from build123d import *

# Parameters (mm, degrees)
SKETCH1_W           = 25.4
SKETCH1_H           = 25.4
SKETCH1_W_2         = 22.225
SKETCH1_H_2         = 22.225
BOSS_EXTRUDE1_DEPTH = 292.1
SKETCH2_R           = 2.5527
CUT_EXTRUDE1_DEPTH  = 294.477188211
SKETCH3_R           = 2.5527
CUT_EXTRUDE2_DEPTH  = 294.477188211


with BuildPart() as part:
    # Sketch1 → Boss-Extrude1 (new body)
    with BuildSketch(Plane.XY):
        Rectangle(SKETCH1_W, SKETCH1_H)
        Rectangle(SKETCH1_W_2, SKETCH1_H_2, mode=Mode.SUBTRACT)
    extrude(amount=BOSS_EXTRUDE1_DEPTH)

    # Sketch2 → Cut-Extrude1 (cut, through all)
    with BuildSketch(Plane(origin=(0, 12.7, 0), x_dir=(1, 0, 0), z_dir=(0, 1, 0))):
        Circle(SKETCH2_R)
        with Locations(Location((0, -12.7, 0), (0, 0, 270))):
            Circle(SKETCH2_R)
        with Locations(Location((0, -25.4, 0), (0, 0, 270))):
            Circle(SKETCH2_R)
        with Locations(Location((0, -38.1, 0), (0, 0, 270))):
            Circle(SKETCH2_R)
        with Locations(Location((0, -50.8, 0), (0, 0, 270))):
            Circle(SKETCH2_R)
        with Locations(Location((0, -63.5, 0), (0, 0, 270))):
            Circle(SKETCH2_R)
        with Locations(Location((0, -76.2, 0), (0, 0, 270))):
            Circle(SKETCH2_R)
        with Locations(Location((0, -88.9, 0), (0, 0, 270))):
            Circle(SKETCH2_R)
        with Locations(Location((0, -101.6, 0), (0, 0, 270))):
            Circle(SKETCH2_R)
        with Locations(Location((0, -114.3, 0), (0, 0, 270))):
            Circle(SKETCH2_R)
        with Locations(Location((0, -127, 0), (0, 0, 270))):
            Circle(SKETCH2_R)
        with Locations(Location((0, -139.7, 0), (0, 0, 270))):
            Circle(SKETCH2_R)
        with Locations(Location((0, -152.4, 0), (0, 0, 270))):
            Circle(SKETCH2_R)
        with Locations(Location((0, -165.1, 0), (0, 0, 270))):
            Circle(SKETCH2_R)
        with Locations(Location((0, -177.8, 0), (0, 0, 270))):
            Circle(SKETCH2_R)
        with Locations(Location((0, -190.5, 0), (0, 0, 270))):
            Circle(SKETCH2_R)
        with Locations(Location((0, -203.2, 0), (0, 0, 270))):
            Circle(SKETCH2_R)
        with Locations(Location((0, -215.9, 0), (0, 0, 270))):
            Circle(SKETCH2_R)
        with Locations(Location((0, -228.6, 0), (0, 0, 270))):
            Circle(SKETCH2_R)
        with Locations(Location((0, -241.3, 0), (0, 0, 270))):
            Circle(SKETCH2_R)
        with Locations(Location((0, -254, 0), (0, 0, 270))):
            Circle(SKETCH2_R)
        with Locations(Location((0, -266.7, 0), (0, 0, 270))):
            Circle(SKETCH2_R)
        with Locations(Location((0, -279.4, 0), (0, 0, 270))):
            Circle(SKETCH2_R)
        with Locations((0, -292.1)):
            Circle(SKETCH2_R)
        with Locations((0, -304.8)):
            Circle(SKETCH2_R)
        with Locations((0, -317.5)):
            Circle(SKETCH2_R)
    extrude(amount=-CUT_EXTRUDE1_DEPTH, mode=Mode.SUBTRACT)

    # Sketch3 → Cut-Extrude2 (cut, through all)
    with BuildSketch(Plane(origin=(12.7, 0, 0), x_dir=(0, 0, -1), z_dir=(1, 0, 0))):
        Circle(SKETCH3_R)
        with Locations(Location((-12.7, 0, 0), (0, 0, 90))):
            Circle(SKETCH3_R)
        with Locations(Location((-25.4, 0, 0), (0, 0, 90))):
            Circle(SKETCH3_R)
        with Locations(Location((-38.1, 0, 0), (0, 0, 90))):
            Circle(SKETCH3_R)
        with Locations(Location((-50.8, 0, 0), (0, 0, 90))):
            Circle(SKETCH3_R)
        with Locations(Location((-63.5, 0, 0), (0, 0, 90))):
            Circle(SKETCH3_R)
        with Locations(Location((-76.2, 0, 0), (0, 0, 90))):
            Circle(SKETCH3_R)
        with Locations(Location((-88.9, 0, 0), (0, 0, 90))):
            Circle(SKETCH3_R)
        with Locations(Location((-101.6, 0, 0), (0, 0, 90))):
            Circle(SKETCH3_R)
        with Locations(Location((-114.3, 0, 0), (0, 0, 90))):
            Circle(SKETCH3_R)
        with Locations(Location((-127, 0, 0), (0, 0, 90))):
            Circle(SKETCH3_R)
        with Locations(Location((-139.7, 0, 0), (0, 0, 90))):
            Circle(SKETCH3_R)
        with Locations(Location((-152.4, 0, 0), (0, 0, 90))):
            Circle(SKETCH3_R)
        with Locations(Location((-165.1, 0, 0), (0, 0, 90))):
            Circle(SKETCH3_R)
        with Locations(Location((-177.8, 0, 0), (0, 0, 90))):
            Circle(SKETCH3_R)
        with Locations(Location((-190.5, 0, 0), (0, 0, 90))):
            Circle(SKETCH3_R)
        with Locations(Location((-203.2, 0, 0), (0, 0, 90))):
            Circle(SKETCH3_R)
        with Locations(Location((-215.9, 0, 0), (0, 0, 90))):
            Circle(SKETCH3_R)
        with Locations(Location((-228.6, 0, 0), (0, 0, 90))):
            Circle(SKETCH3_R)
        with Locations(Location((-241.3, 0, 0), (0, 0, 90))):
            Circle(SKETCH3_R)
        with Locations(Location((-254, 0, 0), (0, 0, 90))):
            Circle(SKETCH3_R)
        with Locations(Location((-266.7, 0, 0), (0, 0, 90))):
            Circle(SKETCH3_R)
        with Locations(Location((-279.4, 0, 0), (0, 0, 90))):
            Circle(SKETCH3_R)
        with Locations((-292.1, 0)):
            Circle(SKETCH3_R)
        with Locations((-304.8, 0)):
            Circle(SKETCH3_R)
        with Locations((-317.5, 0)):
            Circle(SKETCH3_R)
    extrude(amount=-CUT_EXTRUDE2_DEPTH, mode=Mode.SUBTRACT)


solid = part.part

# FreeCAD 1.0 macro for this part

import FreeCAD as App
import Part
import Sketcher
Q = App.Units.Quantity


def add_polygon(sketch, points):
    """Adds a closed chain of lines whose ends are joined by coincident constraints."""
    first, n = sketch.GeometryCount, len(points)
    for a, b in zip(points, points[1:] + points[:1]):
        sketch.addGeometry(Part.LineSegment(App.Vector(*a, 0), App.Vector(*b, 0)), False)
    for i in range(n):
        sketch.addConstraint(Sketcher.Constraint("Coincident", first + i, 2, first + (i + 1) % n, 1))

doc = App.newDocument("Part")
body = doc.addObject("PartDesign::Body", "Body")

sketch1 = body.newObject("Sketcher::SketchObject", "Sketch")
sketch1.AttachmentSupport = (doc.getObject("XY_Plane"), [""])
sketch1.MapMode = "FlatFace"
add_polygon(sketch1, [(-13, 13), (-13, -13), (13, -13), (13, 13)])
add_polygon(sketch1, [(11, -11), (-11, -11), (-11, 11), (11, 11)])
sketch1.addConstraint([
    Sketcher.Constraint("Vertical", 0),
    Sketcher.Constraint("Horizontal", 1),
    Sketcher.Constraint("Vertical", 2),
    Sketcher.Constraint("Horizontal", 3),
    Sketcher.Constraint("Horizontal", 4),
    Sketcher.Constraint("Vertical", 5),
    Sketcher.Constraint("Horizontal", 6),
    Sketcher.Constraint("Vertical", 7),
    Sketcher.Constraint("Symmetric", 0, 2, 2, 2, -1, 1),
    Sketcher.Constraint("Symmetric", 4, 2, 6, 2, -1, 1),
    Sketcher.Constraint("Equal", 3, 0),
    Sketcher.Constraint("Equal", 6, 5),
    Sketcher.Constraint("DistanceX", 1, 1, 1, 2, Q("1 in")),
    Sketcher.Constraint("DistanceX", 4, 2, 4, 1, Q("0.875 in")),
])
pad1 = body.newObject("PartDesign::Pad", "Pad")
pad1.Profile = sketch1
pad1.Length = Q("11.5 in")

sketch2 = body.newObject("Sketcher::SketchObject", "Sketch001")
sketch2.AttachmentSupport = (doc.getObject("XZ_Plane"), [""])
sketch2.MapMode = "FlatFace"
sketch2.AttachmentOffset = App.Placement(App.Vector(0, 0, -0.5 * 25.4), App.Rotation())
sketch2.addGeometry([
    Part.Circle(App.Vector(0, 0, 0), App.Vector(0, 0, 1), 2.6),
    Part.Circle(App.Vector(0, 12.7, 0), App.Vector(0, 0, 1), 2.6),
    Part.Circle(App.Vector(0, 25.4, 0), App.Vector(0, 0, 1), 2.6),
    Part.Circle(App.Vector(0, 38.1, 0), App.Vector(0, 0, 1), 2.6),
    Part.Circle(App.Vector(0, 50.8, 0), App.Vector(0, 0, 1), 2.6),
    Part.Circle(App.Vector(0, 63.5, 0), App.Vector(0, 0, 1), 2.6),
    Part.Circle(App.Vector(0, 76.2, 0), App.Vector(0, 0, 1), 2.6),
    Part.Circle(App.Vector(0, 88.9, 0), App.Vector(0, 0, 1), 2.6),
    Part.Circle(App.Vector(0, 101.6, 0), App.Vector(0, 0, 1), 2.6),
    Part.Circle(App.Vector(0, 114.3, 0), App.Vector(0, 0, 1), 2.6),
    Part.Circle(App.Vector(0, 127, 0), App.Vector(0, 0, 1), 2.6),
    Part.Circle(App.Vector(0, 139.7, 0), App.Vector(0, 0, 1), 2.6),
    Part.Circle(App.Vector(0, 152.4, 0), App.Vector(0, 0, 1), 2.6),
    Part.Circle(App.Vector(0, 165.1, 0), App.Vector(0, 0, 1), 2.6),
    Part.Circle(App.Vector(0, 177.8, 0), App.Vector(0, 0, 1), 2.6),
    Part.Circle(App.Vector(0, 190.5, 0), App.Vector(0, 0, 1), 2.6),
    Part.Circle(App.Vector(0, 203.2, 0), App.Vector(0, 0, 1), 2.6),
    Part.Circle(App.Vector(0, 215.9, 0), App.Vector(0, 0, 1), 2.6),
    Part.Circle(App.Vector(0, 228.6, 0), App.Vector(0, 0, 1), 2.6),
    Part.Circle(App.Vector(0, 241.3, 0), App.Vector(0, 0, 1), 2.6),
    Part.Circle(App.Vector(0, 254, 0), App.Vector(0, 0, 1), 2.6),
    Part.Circle(App.Vector(0, 266.7, 0), App.Vector(0, 0, 1), 2.6),
    Part.Circle(App.Vector(0, 279.4, 0), App.Vector(0, 0, 1), 2.6),
    Part.Circle(App.Vector(0, 292.1, 0), App.Vector(0, 0, 1), 2.6),
    Part.Circle(App.Vector(0, 304.8, 0), App.Vector(0, 0, 1), 2.6),
    Part.Circle(App.Vector(0, 317.5, 0), App.Vector(0, 0, 1), 2.6),
], False)
sketch2.addConstraint([
    Sketcher.Constraint("Coincident", 0, 3, -1, 1),
    Sketcher.Constraint("Equal", 0, 1),
    Sketcher.Constraint("Equal", 1, 2),
    Sketcher.Constraint("Equal", 2, 3),
    Sketcher.Constraint("Equal", 3, 4),
    Sketcher.Constraint("Equal", 4, 5),
    Sketcher.Constraint("Equal", 5, 6),
    Sketcher.Constraint("Equal", 6, 7),
    Sketcher.Constraint("Equal", 7, 8),
    Sketcher.Constraint("Equal", 8, 9),
    Sketcher.Constraint("Equal", 9, 10),
    Sketcher.Constraint("Equal", 10, 11),
    Sketcher.Constraint("Equal", 11, 12),
    Sketcher.Constraint("Equal", 12, 13),
    Sketcher.Constraint("Equal", 13, 14),
    Sketcher.Constraint("Equal", 14, 15),
    Sketcher.Constraint("Equal", 15, 16),
    Sketcher.Constraint("Equal", 16, 17),
    Sketcher.Constraint("Equal", 17, 18),
    Sketcher.Constraint("Equal", 18, 19),
    Sketcher.Constraint("Equal", 19, 20),
    Sketcher.Constraint("Equal", 20, 21),
    Sketcher.Constraint("Equal", 21, 22),
    Sketcher.Constraint("Equal", 22, 23),
    Sketcher.Constraint("Equal", 23, 24),
    Sketcher.Constraint("Equal", 24, 25),
    Sketcher.Constraint("PointOnObject", 1, 3, -2),
    Sketcher.Constraint("PointOnObject", 2, 3, -2),
    Sketcher.Constraint("PointOnObject", 3, 3, -2),
    Sketcher.Constraint("PointOnObject", 4, 3, -2),
    Sketcher.Constraint("PointOnObject", 5, 3, -2),
    Sketcher.Constraint("PointOnObject", 6, 3, -2),
    Sketcher.Constraint("PointOnObject", 7, 3, -2),
    Sketcher.Constraint("PointOnObject", 8, 3, -2),
    Sketcher.Constraint("PointOnObject", 9, 3, -2),
    Sketcher.Constraint("PointOnObject", 10, 3, -2),
    Sketcher.Constraint("PointOnObject", 11, 3, -2),
    Sketcher.Constraint("PointOnObject", 12, 3, -2),
    Sketcher.Constraint("PointOnObject", 13, 3, -2),
    Sketcher.Constraint("PointOnObject", 14, 3, -2),
    Sketcher.Constraint("PointOnObject", 15, 3, -2),
    Sketcher.Constraint("PointOnObject", 16, 3, -2),
    Sketcher.Constraint("PointOnObject", 17, 3, -2),
    Sketcher.Constraint("PointOnObject", 18, 3, -2),
    Sketcher.Constraint("PointOnObject", 19, 3, -2),
    Sketcher.Constraint("PointOnObject", 20, 3, -2),
    Sketcher.Constraint("PointOnObject", 21, 3, -2),
    Sketcher.Constraint("PointOnObject", 22, 3, -2),
    Sketcher.Constraint("PointOnObject", 23, 3, -2),
    Sketcher.Constraint("PointOnObject", 24, 3, -2),
    Sketcher.Constraint("PointOnObject", 25, 3, -2),
    Sketcher.Constraint("Diameter", 0, Q("0.201 in")),
    Sketcher.Constraint("DistanceY", -1, 1, 2, 3, Q("1 in")),
    Sketcher.Constraint("DistanceY", -1, 1, 4, 3, Q("2 in")),
    Sketcher.Constraint("DistanceY", -1, 1, 6, 3, Q("3 in")),
    Sketcher.Constraint("DistanceY", -1, 1, 8, 3, Q("4 in")),
    Sketcher.Constraint("DistanceY", -1, 1, 10, 3, Q("5 in")),
    Sketcher.Constraint("DistanceY", -1, 1, 12, 3, Q("6 in")),
    Sketcher.Constraint("DistanceY", -1, 1, 14, 3, Q("7 in")),
    Sketcher.Constraint("DistanceY", -1, 1, 16, 3, Q("8 in")),
    Sketcher.Constraint("DistanceY", -1, 1, 18, 3, Q("9 in")),
    Sketcher.Constraint("DistanceY", -1, 1, 20, 3, Q("10 in")),
    Sketcher.Constraint("DistanceY", -1, 1, 22, 3, Q("11 in")),
    Sketcher.Constraint("DistanceY", -1, 1, 24, 3, Q("12 in")),
    Sketcher.Constraint("DistanceY", 1, 3, 3, 3, Q("1 in")),
    Sketcher.Constraint("DistanceY", 3, 3, 5, 3, Q("1 in")),
    Sketcher.Constraint("DistanceY", 5, 3, 7, 3, Q("1 in")),
    Sketcher.Constraint("DistanceY", 7, 3, 9, 3, Q("1 in")),
    Sketcher.Constraint("DistanceY", 9, 3, 11, 3, Q("1 in")),
    Sketcher.Constraint("DistanceY", 11, 3, 13, 3, Q("1 in")),
    Sketcher.Constraint("DistanceY", 13, 3, 15, 3, Q("1 in")),
    Sketcher.Constraint("DistanceY", 15, 3, 17, 3, Q("1 in")),
    Sketcher.Constraint("DistanceY", 17, 3, 19, 3, Q("1 in")),
    Sketcher.Constraint("DistanceY", 19, 3, 21, 3, Q("1 in")),
    Sketcher.Constraint("DistanceY", 21, 3, 23, 3, Q("1 in")),
    Sketcher.Constraint("DistanceY", 23, 3, 25, 3, Q("1 in")),
    Sketcher.Constraint("DistanceY", -1, 1, 1, 3, Q("0.5 in")),
])
pocket1 = body.newObject("PartDesign::Pocket", "Pocket")
pocket1.Profile = sketch2
pocket1.Type = "ThroughAll"
pocket1.Reversed = True

sketch3 = body.newObject("Sketcher::SketchObject", "Sketch002")
sketch3.AttachmentSupport = (doc.getObject("YZ_Plane"), [""])
sketch3.MapMode = "FlatFace"
sketch3.AttachmentOffset = App.Placement(App.Vector(0, 0, 0.5 * 25.4), App.Rotation())
sketch3.addGeometry([
    Part.Circle(App.Vector(0, 0, 0), App.Vector(0, 0, 1), 2.6),
    Part.Circle(App.Vector(0, 12.7, 0), App.Vector(0, 0, 1), 2.6),
    Part.Circle(App.Vector(0, 25.4, 0), App.Vector(0, 0, 1), 2.6),
    Part.Circle(App.Vector(0, 38.1, 0), App.Vector(0, 0, 1), 2.6),
    Part.Circle(App.Vector(0, 50.8, 0), App.Vector(0, 0, 1), 2.6),
    Part.Circle(App.Vector(0, 63.5, 0), App.Vector(0, 0, 1), 2.6),
    Part.Circle(App.Vector(0, 76.2, 0), App.Vector(0, 0, 1), 2.6),
    Part.Circle(App.Vector(0, 88.9, 0), App.Vector(0, 0, 1), 2.6),
    Part.Circle(App.Vector(0, 101.6, 0), App.Vector(0, 0, 1), 2.6),
    Part.Circle(App.Vector(0, 114.3, 0), App.Vector(0, 0, 1), 2.6),
    Part.Circle(App.Vector(0, 127, 0), App.Vector(0, 0, 1), 2.6),
    Part.Circle(App.Vector(0, 139.7, 0), App.Vector(0, 0, 1), 2.6),
    Part.Circle(App.Vector(0, 152.4, 0), App.Vector(0, 0, 1), 2.6),
    Part.Circle(App.Vector(0, 165.1, 0), App.Vector(0, 0, 1), 2.6),
    Part.Circle(App.Vector(0, 177.8, 0), App.Vector(0, 0, 1), 2.6),
    Part.Circle(App.Vector(0, 190.5, 0), App.Vector(0, 0, 1), 2.6),
    Part.Circle(App.Vector(0, 203.2, 0), App.Vector(0, 0, 1), 2.6),
    Part.Circle(App.Vector(0, 215.9, 0), App.Vector(0, 0, 1), 2.6),
    Part.Circle(App.Vector(0, 228.6, 0), App.Vector(0, 0, 1), 2.6),
    Part.Circle(App.Vector(0, 241.3, 0), App.Vector(0, 0, 1), 2.6),
    Part.Circle(App.Vector(0, 254, 0), App.Vector(0, 0, 1), 2.6),
    Part.Circle(App.Vector(0, 266.7, 0), App.Vector(0, 0, 1), 2.6),
    Part.Circle(App.Vector(0, 279.4, 0), App.Vector(0, 0, 1), 2.6),
    Part.Circle(App.Vector(0, 292.1, 0), App.Vector(0, 0, 1), 2.6),
    Part.Circle(App.Vector(0, 304.8, 0), App.Vector(0, 0, 1), 2.6),
    Part.Circle(App.Vector(0, 317.5, 0), App.Vector(0, 0, 1), 2.6),
], False)
sketch3.addConstraint([
    Sketcher.Constraint("Coincident", 0, 3, -1, 1),
    Sketcher.Constraint("Equal", 0, 1),
    Sketcher.Constraint("Equal", 1, 2),
    Sketcher.Constraint("Equal", 2, 3),
    Sketcher.Constraint("Equal", 3, 4),
    Sketcher.Constraint("Equal", 4, 5),
    Sketcher.Constraint("Equal", 5, 6),
    Sketcher.Constraint("Equal", 6, 7),
    Sketcher.Constraint("Equal", 7, 8),
    Sketcher.Constraint("Equal", 8, 9),
    Sketcher.Constraint("Equal", 9, 10),
    Sketcher.Constraint("Equal", 10, 11),
    Sketcher.Constraint("Equal", 11, 12),
    Sketcher.Constraint("Equal", 12, 13),
    Sketcher.Constraint("Equal", 13, 14),
    Sketcher.Constraint("Equal", 14, 15),
    Sketcher.Constraint("Equal", 15, 16),
    Sketcher.Constraint("Equal", 16, 17),
    Sketcher.Constraint("Equal", 17, 18),
    Sketcher.Constraint("Equal", 18, 19),
    Sketcher.Constraint("Equal", 19, 20),
    Sketcher.Constraint("Equal", 20, 21),
    Sketcher.Constraint("Equal", 21, 22),
    Sketcher.Constraint("Equal", 22, 23),
    Sketcher.Constraint("Equal", 23, 24),
    Sketcher.Constraint("Equal", 24, 25),
    Sketcher.Constraint("PointOnObject", 1, 3, -2),
    Sketcher.Constraint("PointOnObject", 2, 3, -2),
    Sketcher.Constraint("PointOnObject", 3, 3, -2),
    Sketcher.Constraint("PointOnObject", 4, 3, -2),
    Sketcher.Constraint("PointOnObject", 5, 3, -2),
    Sketcher.Constraint("PointOnObject", 6, 3, -2),
    Sketcher.Constraint("PointOnObject", 7, 3, -2),
    Sketcher.Constraint("PointOnObject", 8, 3, -2),
    Sketcher.Constraint("PointOnObject", 9, 3, -2),
    Sketcher.Constraint("PointOnObject", 10, 3, -2),
    Sketcher.Constraint("PointOnObject", 11, 3, -2),
    Sketcher.Constraint("PointOnObject", 12, 3, -2),
    Sketcher.Constraint("PointOnObject", 13, 3, -2),
    Sketcher.Constraint("PointOnObject", 14, 3, -2),
    Sketcher.Constraint("PointOnObject", 15, 3, -2),
    Sketcher.Constraint("PointOnObject", 16, 3, -2),
    Sketcher.Constraint("PointOnObject", 17, 3, -2),
    Sketcher.Constraint("PointOnObject", 18, 3, -2),
    Sketcher.Constraint("PointOnObject", 19, 3, -2),
    Sketcher.Constraint("PointOnObject", 20, 3, -2),
    Sketcher.Constraint("PointOnObject", 21, 3, -2),
    Sketcher.Constraint("PointOnObject", 22, 3, -2),
    Sketcher.Constraint("PointOnObject", 23, 3, -2),
    Sketcher.Constraint("PointOnObject", 24, 3, -2),
    Sketcher.Constraint("PointOnObject", 25, 3, -2),
    Sketcher.Constraint("Diameter", 0, Q("0.201 in")),
    Sketcher.Constraint("DistanceY", -1, 1, 2, 3, Q("1 in")),
    Sketcher.Constraint("DistanceY", -1, 1, 4, 3, Q("2 in")),
    Sketcher.Constraint("DistanceY", -1, 1, 6, 3, Q("3 in")),
    Sketcher.Constraint("DistanceY", -1, 1, 8, 3, Q("4 in")),
    Sketcher.Constraint("DistanceY", -1, 1, 10, 3, Q("5 in")),
    Sketcher.Constraint("DistanceY", -1, 1, 12, 3, Q("6 in")),
    Sketcher.Constraint("DistanceY", -1, 1, 14, 3, Q("7 in")),
    Sketcher.Constraint("DistanceY", -1, 1, 16, 3, Q("8 in")),
    Sketcher.Constraint("DistanceY", -1, 1, 18, 3, Q("9 in")),
    Sketcher.Constraint("DistanceY", -1, 1, 20, 3, Q("10 in")),
    Sketcher.Constraint("DistanceY", -1, 1, 22, 3, Q("11 in")),
    Sketcher.Constraint("DistanceY", -1, 1, 24, 3, Q("12 in")),
    Sketcher.Constraint("DistanceY", 1, 3, 3, 3, Q("1 in")),
    Sketcher.Constraint("DistanceY", 3, 3, 5, 3, Q("1 in")),
    Sketcher.Constraint("DistanceY", 5, 3, 7, 3, Q("1 in")),
    Sketcher.Constraint("DistanceY", 7, 3, 9, 3, Q("1 in")),
    Sketcher.Constraint("DistanceY", 9, 3, 11, 3, Q("1 in")),
    Sketcher.Constraint("DistanceY", 11, 3, 13, 3, Q("1 in")),
    Sketcher.Constraint("DistanceY", 13, 3, 15, 3, Q("1 in")),
    Sketcher.Constraint("DistanceY", 15, 3, 17, 3, Q("1 in")),
    Sketcher.Constraint("DistanceY", 17, 3, 19, 3, Q("1 in")),
    Sketcher.Constraint("DistanceY", 19, 3, 21, 3, Q("1 in")),
    Sketcher.Constraint("DistanceY", 21, 3, 23, 3, Q("1 in")),
    Sketcher.Constraint("DistanceY", 23, 3, 25, 3, Q("1 in")),
    Sketcher.Constraint("DistanceY", -1, 1, 1, 3, Q("0.5 in")),
])
pocket2 = body.newObject("PartDesign::Pocket", "Pocket001")
pocket2.Profile = sketch3
pocket2.Type = "ThroughAll"

doc.recompute()
